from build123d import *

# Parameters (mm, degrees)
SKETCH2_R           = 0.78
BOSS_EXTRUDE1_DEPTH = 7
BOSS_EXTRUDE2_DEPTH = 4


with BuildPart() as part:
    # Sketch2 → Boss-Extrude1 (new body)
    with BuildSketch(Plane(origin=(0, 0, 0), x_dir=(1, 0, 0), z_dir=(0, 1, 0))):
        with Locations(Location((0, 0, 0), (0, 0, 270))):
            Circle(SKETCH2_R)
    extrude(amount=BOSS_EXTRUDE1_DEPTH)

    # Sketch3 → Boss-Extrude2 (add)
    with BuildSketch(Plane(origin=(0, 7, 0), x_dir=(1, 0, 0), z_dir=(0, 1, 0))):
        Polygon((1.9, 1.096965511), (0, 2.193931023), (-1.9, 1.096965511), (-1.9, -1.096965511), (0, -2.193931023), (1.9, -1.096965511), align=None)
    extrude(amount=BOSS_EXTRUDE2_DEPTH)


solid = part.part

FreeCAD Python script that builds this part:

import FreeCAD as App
import Part
import Sketcher

V = App.Vector
Q = App.Units.Quantity


def add_polygon(sketch, points):
    """Adds a closed chain of lines whose ends are joined by coincident constraints."""
    first, n = sketch.GeometryCount, len(points)
    for a, b in zip(points, points[1:] + points[:1]):
        sketch.addGeometry(Part.LineSegment(App.Vector(*a, 0), App.Vector(*b, 0)), False)
    for i in range(n):
        sketch.addConstraint(Sketcher.Constraint("Coincident", first + i, 2, first + (i + 1) % n, 1))

doc = App.newDocument("Part")
body = doc.addObject("PartDesign::Body", "Body")

sketch1 = body.newObject("Sketcher::SketchObject", "Sketch")
sketch1.AttachmentSupport = (doc.getObject("XZ_Plane"), [""])
sketch1.MapMode = "FlatFace"
sketch1.addGeometry(Part.Circle(V(0, 0, 0), V(0, 0, 1), 0.8), False)
sketch1.addConstraint([
    Sketcher.Constraint("Coincident", 0, 3, -1, 1),
    Sketcher.Constraint("Diameter", 0, Q("1.56 mm")),
])
pad1 = body.newObject("PartDesign::Pad", "Pad")
pad1.Profile = sketch1
pad1.Length = 7
pad1.Reversed = True

sketch2 = body.newObject("Sketcher::SketchObject", "Sketch001")
sketch2.AttachmentSupport = (doc.getObject("XZ_Plane"), [""])
sketch2.MapMode = "FlatFace"
sketch2.AttachmentOffset = App.Placement(V(0, 0, -7), App.Rotation())
add_polygon(sketch2, [(1.9, -1.1), (0, -2.2), (-1.9, -1.1), (-1.9, 1.1), (0, 2.2), (1.9, 1.1)])
sketch2.addConstraint([
    Sketcher.Constraint("Vertical", 2),
    Sketcher.Constraint("Vertical", 5),
    Sketcher.Constraint("Symmetric", 0, 2, 3, 2, -1, 1),
    Sketcher.Constraint("Symmetric", 1, 2, 4, 2, -1, 1),
    Sketcher.Constraint("PointOnObject", 0, 2, -2),
    Sketcher.Constraint("Parallel", 0, 3),
    Sketcher.Constraint("Horizontal", 2, 2, 4, 2),
    Sketcher.Constraint("Angle", 0, Q("-150 deg")),
    Sketcher.Constraint("DistanceX", 1, 2, -1, 1, Q("1.9 mm")),
    Sketcher.Constraint("DistanceY", 2, 1, 2, 2, Q("2.193931 mm")),
])
pad2 = body.newObject("PartDesign::Pad", "Pad001")
pad2.Profile = sketch2
pad2.Length = 4
pad2.Reversed = True

doc.recompute()
